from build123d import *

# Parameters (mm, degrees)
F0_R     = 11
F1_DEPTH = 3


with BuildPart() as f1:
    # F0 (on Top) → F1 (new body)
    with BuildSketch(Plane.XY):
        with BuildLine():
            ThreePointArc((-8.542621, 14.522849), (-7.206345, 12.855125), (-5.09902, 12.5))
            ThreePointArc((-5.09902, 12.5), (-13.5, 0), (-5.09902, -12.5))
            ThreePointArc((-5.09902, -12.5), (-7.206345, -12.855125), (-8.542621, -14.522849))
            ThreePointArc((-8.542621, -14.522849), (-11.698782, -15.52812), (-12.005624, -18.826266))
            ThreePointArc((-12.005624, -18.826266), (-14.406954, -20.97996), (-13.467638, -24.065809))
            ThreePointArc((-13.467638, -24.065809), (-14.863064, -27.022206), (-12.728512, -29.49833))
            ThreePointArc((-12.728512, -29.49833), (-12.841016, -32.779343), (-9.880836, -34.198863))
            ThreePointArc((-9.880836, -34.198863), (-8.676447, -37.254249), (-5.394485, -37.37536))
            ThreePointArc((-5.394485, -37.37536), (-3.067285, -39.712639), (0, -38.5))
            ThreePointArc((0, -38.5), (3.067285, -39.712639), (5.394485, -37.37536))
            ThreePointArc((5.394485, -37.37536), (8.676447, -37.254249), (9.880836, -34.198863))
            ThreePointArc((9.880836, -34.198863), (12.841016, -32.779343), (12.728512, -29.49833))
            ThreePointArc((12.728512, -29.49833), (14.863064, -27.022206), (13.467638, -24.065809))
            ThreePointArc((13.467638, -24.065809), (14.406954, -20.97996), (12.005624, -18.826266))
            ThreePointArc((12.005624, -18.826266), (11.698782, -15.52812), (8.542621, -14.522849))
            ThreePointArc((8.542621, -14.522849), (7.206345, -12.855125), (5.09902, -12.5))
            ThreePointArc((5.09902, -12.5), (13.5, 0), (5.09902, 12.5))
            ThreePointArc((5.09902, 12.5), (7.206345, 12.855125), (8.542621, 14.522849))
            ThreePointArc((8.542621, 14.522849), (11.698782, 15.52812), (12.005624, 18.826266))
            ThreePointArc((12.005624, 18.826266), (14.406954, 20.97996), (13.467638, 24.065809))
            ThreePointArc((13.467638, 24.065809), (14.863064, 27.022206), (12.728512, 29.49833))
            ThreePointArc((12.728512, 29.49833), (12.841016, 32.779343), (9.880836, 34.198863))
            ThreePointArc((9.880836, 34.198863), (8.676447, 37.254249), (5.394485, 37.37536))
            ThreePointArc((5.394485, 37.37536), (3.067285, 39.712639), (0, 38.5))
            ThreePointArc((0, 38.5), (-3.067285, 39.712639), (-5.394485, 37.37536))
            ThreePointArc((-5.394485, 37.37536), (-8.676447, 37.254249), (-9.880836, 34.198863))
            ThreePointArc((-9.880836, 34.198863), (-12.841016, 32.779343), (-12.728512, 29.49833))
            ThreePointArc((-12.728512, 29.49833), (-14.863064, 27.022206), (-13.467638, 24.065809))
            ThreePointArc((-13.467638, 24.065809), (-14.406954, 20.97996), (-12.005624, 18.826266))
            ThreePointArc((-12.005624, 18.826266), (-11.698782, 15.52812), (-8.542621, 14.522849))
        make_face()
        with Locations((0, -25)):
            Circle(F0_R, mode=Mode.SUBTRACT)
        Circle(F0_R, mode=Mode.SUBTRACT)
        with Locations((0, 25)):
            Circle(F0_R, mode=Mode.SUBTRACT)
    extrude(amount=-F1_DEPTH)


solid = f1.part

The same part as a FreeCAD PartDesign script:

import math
import FreeCAD as App
import Part
import Sketcher

V = App.Vector
Q = App.Units.Quantity

doc = App.newDocument("Part")
body = doc.addObject("PartDesign::Body", "Body")

# Sketch on XY plane
sketch1 = body.newObject("Sketcher::SketchObject", "Sketch")
sketch1.AttachmentSupport = (doc.getObject("XY_Plane"), [""])
sketch1.MapMode = "FlatFace"
sketch1.addGeometry([
    Part.ArcOfCircle(Part.Circle(V(-5.7, 15.4, 0), V(0, 0, 1), 3), math.radians(-162), math.radians(-79)),  # 0
    Part.ArcOfCircle(Part.Circle(V(0, 0, 0), V(0, 0, 1), 13.5), math.radians(112), math.radians(248)),  # 1
    Part.ArcOfCircle(Part.Circle(V(-5.7, -15.4, 0), V(0, 0, 1), 3), math.radians(79), math.radians(162)),  # 2
    Part.ArcOfCircle(Part.Circle(V(-9.4, -17.4, 0), V(0, 0, 1), 3), math.radians(74), math.radians(208)),  # 3
    Part.ArcOfCircle(Part.Circle(V(-11.5, -21.8, 0), V(0, 0, 1), 3), math.radians(99), math.radians(229)),  # 4
    Part.ArcOfCircle(Part.Circle(V(-11.9, -26.6, 0), V(0, 0, 1), 3), math.radians(122), math.radians(254)),  # 5
    Part.ArcOfCircle(Part.Circle(V(-10.3, -31.2, 0), V(0, 0, 1), 3), math.radians(145), math.radians(278)),  # 6
    Part.ArcOfCircle(Part.Circle(V(-6.9, -34.8, 0), V(0, 0, 1), 3), math.radians(168), math.radians(301)),  # 7
    Part.ArcOfCircle(Part.Circle(V(-2.5, -36.8, 0), V(0, 0, 1), 3), math.radians(-168), math.radians(-35)),  # 8
    Part.ArcOfCircle(Part.Circle(V(2.5, -36.8, 0), V(0, 0, 1), 3), math.radians(-145), math.radians(-12)),  # 9
    Part.ArcOfCircle(Part.Circle(V(6.9, -34.8, 0), V(0, 0, 1), 3), math.radians(-121), math.radians(12)),  # 10
    Part.ArcOfCircle(Part.Circle(V(10.3, -31.2, 0), V(0, 0, 1), 3), math.radians(-98), math.radians(35)),  # 11
    Part.ArcOfCircle(Part.Circle(V(11.9, -26.6, 0), V(0, 0, 1), 3), math.radians(-74), math.radians(58)),  # 12
    Part.ArcOfCircle(Part.Circle(V(11.5, -21.8, 0), V(0, 0, 1), 3), math.radians(-49), math.radians(81)),  # 13
    Part.ArcOfCircle(Part.Circle(V(9.4, -17.4, 0), V(0, 0, 1), 3), math.radians(-28), math.radians(106)),  # 14
    Part.ArcOfCircle(Part.Circle(V(5.7, -15.4, 0), V(0, 0, 1), 3), math.radians(18), math.radians(101)),  # 15
    Part.ArcOfCircle(Part.Circle(V(0, 0, 0), V(0, 0, 1), 13.5), math.radians(-68), math.radians(68)),  # 16
    Part.ArcOfCircle(Part.Circle(V(5.7, 15.4, 0), V(0, 0, 1), 3), math.radians(-101), math.radians(-18)),  # 17
    Part.ArcOfCircle(Part.Circle(V(9.4, 17.4, 0), V(0, 0, 1), 3), math.radians(-106), math.radians(28)),  # 18
    Part.ArcOfCircle(Part.Circle(V(11.5, 21.8, 0), V(0, 0, 1), 3), math.radians(-81), math.radians(49)),  # 19
    Part.ArcOfCircle(Part.Circle(V(11.9, 26.6, 0), V(0, 0, 1), 3), math.radians(-58), math.radians(74)),  # 20
    Part.ArcOfCircle(Part.Circle(V(10.3, 31.2, 0), V(0, 0, 1), 3), math.radians(-35), math.radians(98)),  # 21
    Part.ArcOfCircle(Part.Circle(V(6.9, 34.8, 0), V(0, 0, 1), 3), math.radians(-12), math.radians(121)),  # 22
    Part.ArcOfCircle(Part.Circle(V(2.5, 36.8, 0), V(0, 0, 1), 3), math.radians(12), math.radians(145)),  # 23
    Part.ArcOfCircle(Part.Circle(V(-2.5, 36.8, 0), V(0, 0, 1), 3), math.radians(35), math.radians(168)),  # 24
    Part.ArcOfCircle(Part.Circle(V(-6.9, 34.8, 0), V(0, 0, 1), 3), math.radians(59), math.radians(192)),  # 25
    Part.ArcOfCircle(Part.Circle(V(-10.3, 31.2, 0), V(0, 0, 1), 3), math.radians(82), math.radians(215)),  # 26
    Part.ArcOfCircle(Part.Circle(V(-11.9, 26.6, 0), V(0, 0, 1), 3), math.radians(106), math.radians(238)),  # 27
    Part.ArcOfCircle(Part.Circle(V(-11.5, 21.8, 0), V(0, 0, 1), 3), math.radians(131), math.radians(261)),  # 28
    Part.ArcOfCircle(Part.Circle(V(-9.4, 17.4, 0), V(0, 0, 1), 3), math.radians(152), math.radians(286)),  # 29
    Part.Circle(V(0, -25, 0), V(0, 0, 1), 11),  # 30
    Part.Circle(V(0, 0, 0), V(0, 0, 1), 11),  # 31
    Part.Circle(V(0, 25, 0), V(0, 0, 1), 11),  # 32
], False)
sketch1.addConstraint([
    Sketcher.Constraint("Coincident", 0, 2, 1, 1),
    Sketcher.Constraint("Coincident", 1, 2, 2, 1),
    Sketcher.Constraint("Coincident", 2, 2, 3, 1),
    Sketcher.Constraint("Coincident", 3, 2, 4, 1),
    Sketcher.Constraint("Coincident", 4, 2, 5, 1),
    Sketcher.Constraint("Coincident", 5, 2, 6, 1),
    Sketcher.Constraint("Coincident", 6, 2, 7, 1),
    Sketcher.Constraint("Coincident", 7, 2, 8, 1),
    Sketcher.Constraint("Coincident", 8, 2, 9, 1),
    Sketcher.Constraint("Coincident", 9, 2, 10, 1),
    Sketcher.Constraint("Coincident", 10, 2, 11, 1),
    Sketcher.Constraint("Coincident", 11, 2, 12, 1),
    Sketcher.Constraint("Coincident", 12, 2, 13, 1),
    Sketcher.Constraint("Coincident", 13, 2, 14, 1),
    Sketcher.Constraint("Coincident", 14, 2, 15, 1),
    Sketcher.Constraint("Coincident", 15, 2, 16, 1),
    Sketcher.Constraint("Coincident", 16, 2, 17, 1),
    Sketcher.Constraint("Coincident", 17, 2, 18, 1),
    Sketcher.Constraint("Coincident", 18, 2, 19, 1),
    Sketcher.Constraint("Coincident", 19, 2, 20, 1),
    Sketcher.Constraint("Coincident", 20, 2, 21, 1),
    Sketcher.Constraint("Coincident", 21, 2, 22, 1),
    Sketcher.Constraint("Coincident", 22, 2, 23, 1),
    Sketcher.Constraint("Coincident", 23, 2, 24, 1),
    Sketcher.Constraint("Coincident", 24, 2, 25, 1),
    Sketcher.Constraint("Coincident", 25, 2, 26, 1),
    Sketcher.Constraint("Coincident", 26, 2, 27, 1),
    Sketcher.Constraint("Coincident", 27, 2, 28, 1),
    Sketcher.Constraint("Coincident", 28, 2, 29, 1),
    Sketcher.Constraint("Coincident", 29, 2, 0, 1),
    Sketcher.Constraint("Coincident", 1, 3, -1, 1),
    Sketcher.Constraint("Coincident", 16, 3, -1, 1),
    Sketcher.Constraint("Coincident", 31, 3, -1, 1),
    Sketcher.Constraint("Equal", 0, 2),
    Sketcher.Constraint("Equal", 2, 3),
    Sketcher.Constraint("Equal", 3, 4),
    Sketcher.Constraint("Equal", 4, 5),
    Sketcher.Constraint("Equal", 5, 6),
    Sketcher.Constraint("Equal", 6, 7),
    Sketcher.Constraint("Equal", 7, 8),
    Sketcher.Constraint("Equal", 8, 9),
    Sketcher.Constraint("Equal", 9, 10),
    Sketcher.Constraint("Equal", 10, 11),
    Sketcher.Constraint("Equal", 11, 12),
    Sketcher.Constraint("Equal", 12, 13),
    Sketcher.Constraint("Equal", 13, 14),
    Sketcher.Constraint("Equal", 14, 15),
    Sketcher.Constraint("Equal", 1, 16),
    Sketcher.Constraint("Equal", 15, 17),
    Sketcher.Constraint("Equal", 17, 18),
    Sketcher.Constraint("Equal", 18, 19),
    Sketcher.Constraint("Equal", 19, 20),
    Sketcher.Constraint("Equal", 20, 21),
    Sketcher.Constraint("Equal", 21, 22),
    Sketcher.Constraint("Equal", 22, 23),
    Sketcher.Constraint("Equal", 23, 24),
    Sketcher.Constraint("Equal", 24, 25),
    Sketcher.Constraint("Equal", 25, 26),
    Sketcher.Constraint("Equal", 26, 27),
    Sketcher.Constraint("Equal", 27, 28),
    Sketcher.Constraint("Equal", 28, 29),
    Sketcher.Constraint("Equal", 30, 31),
    Sketcher.Constraint("Equal", 31, 32),
    Sketcher.Constraint("Symmetric", 0, 3, 15, 3, -1, 1),
    Sketcher.Constraint("Symmetric", 2, 3, 17, 3, -1, 1),
    Sketcher.Constraint("Symmetric", 3, 3, 18, 3, -1, 1),
    Sketcher.Constraint("Symmetric", 4, 3, 19, 3, -1, 1),
    Sketcher.Constraint("Symmetric", 5, 3, 20, 3, -1, 1),
    Sketcher.Constraint("Symmetric", 6, 3, 21, 3, -1, 1),
    Sketcher.Constraint("Symmetric", 7, 3, 22, 3, -1, 1),
    Sketcher.Constraint("Symmetric", 8, 3, 23, 3, -1, 1),
    Sketcher.Constraint("Symmetric", 9, 3, 24, 3, -1, 1),
    Sketcher.Constraint("Symmetric", 10, 3, 25, 3, -1, 1),
    Sketcher.Constraint("Symmetric", 11, 3, 26, 3, -1, 1),
    Sketcher.Constraint("Symmetric", 12, 3, 27, 3, -1, 1),
    Sketcher.Constraint("Symmetric", 13, 3, 28, 3, -1, 1),
    Sketcher.Constraint("Symmetric", 14, 3, 29, 3, -1, 1),
    Sketcher.Constraint("Symmetric", 30, 3, 32, 3, -1, 1),
    Sketcher.Constraint("Symmetric", 8, 3, 9, 3, -2),
    Sketcher.Constraint("Symmetric", 7, 3, 10, 3, -2),
    Sketcher.Constraint("Symmetric", 6, 3, 11, 3, -2),
    Sketcher.Constraint("Symmetric", 5, 3, 12, 3, -2),
    Sketcher.Constraint("Symmetric", 4, 3, 13, 3, -2),
    Sketcher.Constraint("Symmetric", 3, 3, 14, 3, -2),
    Sketcher.Constraint("Symmetric", 2, 3, 15, 3, -2),
    Sketcher.Constraint("PointOnObject", 30, 3, -2),
    Sketcher.Constraint("Diameter", 30, Q("22 mm")),
    Sketcher.Constraint("Radius", 0, Q("3 mm")),
    Sketcher.Constraint("Radius", 1, Q("13.5 mm")),
    Sketcher.Constraint("DistanceY", 30, 3, -1, 1, Q("25 mm")),
    Sketcher.Constraint("DistanceY", -1, 1, 0, 2, Q("12.5 mm")),
    Sketcher.Constraint("DistanceY", 8, 2, -1, 1, Q("38.5 mm")),
    Sketcher.Constraint("DistanceY", 3, 3, -1, 1, Q("17.40891 mm")),
    Sketcher.Constraint("DistanceX", 4, 3, -1, 1, Q("11.517339 mm")),
    Sketcher.Constraint("DistanceX", 5, 3, -1, 1, Q("11.890451 mm")),
    Sketcher.Constraint("DistanceX", 6, 3, -1, 1, Q("10.275149 mm")),
    Sketcher.Constraint("DistanceY", 6, 3, -1, 1, Q("31.22489 mm")),
    Sketcher.Constraint("DistanceX", 7, 3, -1, 1, Q("6.94288 mm")),
    Sketcher.Constraint("DistanceX", 8, 3, -1, 1, Q("2.455011 mm")),
    Sketcher.Constraint("DistanceX", 2, 2, -1, 1, Q("8.542621 mm")),
    Sketcher.Constraint("DistanceY", 2, 2, -1, 1, Q("14.522849 mm")),
    Sketcher.Constraint("DistanceX", 4, 2, -1, 1, Q("13.467638 mm")),
    Sketcher.Constraint("DistanceY", 4, 2, -1, 1, Q("24.065809 mm")),
    Sketcher.Constraint("DistanceY", 7, 2, -1, 1, Q("37.37536 mm")),
])
pad1 = body.newObject("PartDesign::Pad", "Pad")
pad1.Profile = sketch1
pad1.Length = 3
pad1.Reversed = True

doc.recompute()
